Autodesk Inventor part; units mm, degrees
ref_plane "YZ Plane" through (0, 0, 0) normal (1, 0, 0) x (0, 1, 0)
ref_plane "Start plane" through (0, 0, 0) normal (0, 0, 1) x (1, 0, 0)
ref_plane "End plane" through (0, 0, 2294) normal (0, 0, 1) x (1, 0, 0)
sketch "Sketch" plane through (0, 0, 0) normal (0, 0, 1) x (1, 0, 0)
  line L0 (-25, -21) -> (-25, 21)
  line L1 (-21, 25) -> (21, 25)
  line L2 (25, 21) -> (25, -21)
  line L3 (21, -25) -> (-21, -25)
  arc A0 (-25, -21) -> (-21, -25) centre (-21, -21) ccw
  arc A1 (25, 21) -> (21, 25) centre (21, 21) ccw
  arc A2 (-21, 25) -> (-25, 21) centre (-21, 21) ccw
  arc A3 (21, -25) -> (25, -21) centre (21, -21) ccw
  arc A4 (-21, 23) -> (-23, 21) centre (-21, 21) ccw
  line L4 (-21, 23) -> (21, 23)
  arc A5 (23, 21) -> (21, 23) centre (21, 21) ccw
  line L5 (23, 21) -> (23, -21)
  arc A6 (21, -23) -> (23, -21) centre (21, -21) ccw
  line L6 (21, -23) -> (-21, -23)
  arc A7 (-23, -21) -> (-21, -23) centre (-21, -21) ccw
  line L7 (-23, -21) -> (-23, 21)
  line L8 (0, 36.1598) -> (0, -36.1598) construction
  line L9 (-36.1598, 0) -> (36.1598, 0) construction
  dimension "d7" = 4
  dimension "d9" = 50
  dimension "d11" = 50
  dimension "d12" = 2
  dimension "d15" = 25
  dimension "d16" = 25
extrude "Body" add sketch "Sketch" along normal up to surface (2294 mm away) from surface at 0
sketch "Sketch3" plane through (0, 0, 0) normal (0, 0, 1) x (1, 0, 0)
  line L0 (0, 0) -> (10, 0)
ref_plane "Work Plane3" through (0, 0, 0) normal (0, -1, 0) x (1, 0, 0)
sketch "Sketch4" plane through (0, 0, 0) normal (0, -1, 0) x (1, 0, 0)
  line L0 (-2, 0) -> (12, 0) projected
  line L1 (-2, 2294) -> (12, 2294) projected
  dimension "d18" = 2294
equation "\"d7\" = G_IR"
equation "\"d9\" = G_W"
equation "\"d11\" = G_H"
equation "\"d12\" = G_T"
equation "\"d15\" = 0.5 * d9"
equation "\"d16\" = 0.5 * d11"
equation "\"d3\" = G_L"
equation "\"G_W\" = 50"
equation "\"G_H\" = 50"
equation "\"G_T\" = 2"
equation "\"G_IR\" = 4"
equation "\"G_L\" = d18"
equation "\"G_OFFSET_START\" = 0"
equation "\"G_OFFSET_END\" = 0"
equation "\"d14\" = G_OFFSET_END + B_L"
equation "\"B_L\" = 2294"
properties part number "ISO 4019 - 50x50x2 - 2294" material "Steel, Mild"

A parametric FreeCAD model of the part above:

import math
import FreeCAD as App
import Part
import Sketcher

V = App.Vector

doc = App.newDocument("Part")
params = doc.addObject("Spreadsheet::Sheet", "Params")
for row, (alias, value) in enumerate([
    ("sketch1_radius", "4 mm"),
    ("sketch1_radius2", "2 mm"),
    ("pad1_length", "2294 mm"),
], start=1):
    params.set(f"A{row}", alias)
    params.set(f"B{row}", "=" + value)
    params.setAlias(f"B{row}", alias)

body = doc.addObject("PartDesign::Body", "Body")

# Sketch on XY plane
sketch1 = body.newObject("Sketcher::SketchObject", "Sketch")
sketch1.AttachmentSupport = (doc.getObject("XY_Plane"), [""])
sketch1.MapMode = "FlatFace"
sketch1.addGeometry([
    Part.LineSegment(V(-25, 21, 0), V(-25, -21, 0)),  # 0
    Part.ArcOfCircle(Part.Circle(V(-21, -21, 0), V(0, 0, 1), 4), math.radians(180), math.radians(270)),  # 1
    Part.LineSegment(V(-21, -25, 0), V(21, -25, 0)),  # 2
    Part.ArcOfCircle(Part.Circle(V(21, -21, 0), V(0, 0, 1), 4), math.radians(-90), math.radians(0)),  # 3
    Part.LineSegment(V(25, -21, 0), V(25, 21, 0)),  # 4
    Part.ArcOfCircle(Part.Circle(V(21, 21, 0), V(0, 0, 1), 4), math.radians(0), math.radians(90)),  # 5
    Part.LineSegment(V(21, 25, 0), V(-21, 25, 0)),  # 6
    Part.ArcOfCircle(Part.Circle(V(-21, 21, 0), V(0, 0, 1), 4), math.radians(90), math.radians(180)),  # 7
    Part.ArcOfCircle(Part.Circle(V(-21, 21, 0), V(0, 0, 1), 2), math.radians(90), math.radians(180)),  # 8
    Part.LineSegment(V(-21, 23, 0), V(21, 23, 0)),  # 9
    Part.ArcOfCircle(Part.Circle(V(21, 21, 0), V(0, 0, 1), 2), math.radians(0), math.radians(90)),  # 10
    Part.LineSegment(V(23, 21, 0), V(23, -21, 0)),  # 11
    Part.ArcOfCircle(Part.Circle(V(21, -21, 0), V(0, 0, 1), 2), math.radians(-90), math.radians(0)),  # 12
    Part.LineSegment(V(21, -23, 0), V(-21, -23, 0)),  # 13
    Part.ArcOfCircle(Part.Circle(V(-21, -21, 0), V(0, 0, 1), 2), math.radians(180), math.radians(270)),  # 14
    Part.LineSegment(V(-23, -21, 0), V(-23, 21, 0)),  # 15
], False)
sketch1.addConstraint([
    Sketcher.Constraint("Tangent", 0, 2, 1, 1),
    Sketcher.Constraint("Tangent", 1, 2, 2, 1),
    Sketcher.Constraint("Tangent", 2, 2, 3, 1),
    Sketcher.Constraint("Tangent", 3, 2, 4, 1),
    Sketcher.Constraint("Tangent", 4, 2, 5, 1),
    Sketcher.Constraint("Tangent", 5, 2, 6, 1),
    Sketcher.Constraint("Tangent", 6, 2, 7, 1),
    Sketcher.Constraint("Tangent", 7, 2, 0, 1),
    Sketcher.Constraint("Tangent", 8, 1, 9, 1),
    Sketcher.Constraint("Tangent", 9, 2, 10, 2),
    Sketcher.Constraint("Tangent", 10, 1, 11, 1),
    Sketcher.Constraint("Tangent", 11, 2, 12, 2),
    Sketcher.Constraint("Tangent", 12, 1, 13, 1),
    Sketcher.Constraint("Tangent", 13, 2, 14, 2),
    Sketcher.Constraint("Tangent", 14, 1, 15, 1),
    Sketcher.Constraint("Tangent", 15, 2, 8, 2),
    Sketcher.Constraint("Vertical", 0),
    Sketcher.Constraint("Horizontal", 2),
    Sketcher.Constraint("Vertical", 4),
    Sketcher.Constraint("Horizontal", 6),
    Sketcher.Constraint("Horizontal", 9),
    Sketcher.Constraint("Vertical", 11),
    Sketcher.Constraint("Horizontal", 13),
    Sketcher.Constraint("Vertical", 15),
    Sketcher.Constraint("Coincident", 8, 3, 7, 3),
    Sketcher.Constraint("Coincident", 10, 3, 5, 3),
    Sketcher.Constraint("Coincident", 12, 3, 3, 3),
    Sketcher.Constraint("Equal", 1, 3),
    Sketcher.Constraint("Equal", 3, 5),
    Sketcher.Constraint("Equal", 5, 7),
    Sketcher.Constraint("Equal", 12, 14),
    Sketcher.Constraint("Symmetric", 1, 3, 5, 3, -1, 1),
    Sketcher.Constraint("Equal", 13, 0),
    Sketcher.Constraint("Radius", 1, 4.0),
    Sketcher.Constraint("Radius", 8, 2.0),
    Sketcher.Constraint("DistanceX", 0, 2, -1, 1, 25.0),
])
sketch1.setExpression("Constraints[33]", "Params.sketch1_radius")
sketch1.setExpression("Constraints[34]", "Params.sketch1_radius2")
pad1 = body.newObject("PartDesign::Pad", "Pad")
pad1.Profile = sketch1
pad1.setExpression("Length", "Params.pad1_length")

doc.recompute()
